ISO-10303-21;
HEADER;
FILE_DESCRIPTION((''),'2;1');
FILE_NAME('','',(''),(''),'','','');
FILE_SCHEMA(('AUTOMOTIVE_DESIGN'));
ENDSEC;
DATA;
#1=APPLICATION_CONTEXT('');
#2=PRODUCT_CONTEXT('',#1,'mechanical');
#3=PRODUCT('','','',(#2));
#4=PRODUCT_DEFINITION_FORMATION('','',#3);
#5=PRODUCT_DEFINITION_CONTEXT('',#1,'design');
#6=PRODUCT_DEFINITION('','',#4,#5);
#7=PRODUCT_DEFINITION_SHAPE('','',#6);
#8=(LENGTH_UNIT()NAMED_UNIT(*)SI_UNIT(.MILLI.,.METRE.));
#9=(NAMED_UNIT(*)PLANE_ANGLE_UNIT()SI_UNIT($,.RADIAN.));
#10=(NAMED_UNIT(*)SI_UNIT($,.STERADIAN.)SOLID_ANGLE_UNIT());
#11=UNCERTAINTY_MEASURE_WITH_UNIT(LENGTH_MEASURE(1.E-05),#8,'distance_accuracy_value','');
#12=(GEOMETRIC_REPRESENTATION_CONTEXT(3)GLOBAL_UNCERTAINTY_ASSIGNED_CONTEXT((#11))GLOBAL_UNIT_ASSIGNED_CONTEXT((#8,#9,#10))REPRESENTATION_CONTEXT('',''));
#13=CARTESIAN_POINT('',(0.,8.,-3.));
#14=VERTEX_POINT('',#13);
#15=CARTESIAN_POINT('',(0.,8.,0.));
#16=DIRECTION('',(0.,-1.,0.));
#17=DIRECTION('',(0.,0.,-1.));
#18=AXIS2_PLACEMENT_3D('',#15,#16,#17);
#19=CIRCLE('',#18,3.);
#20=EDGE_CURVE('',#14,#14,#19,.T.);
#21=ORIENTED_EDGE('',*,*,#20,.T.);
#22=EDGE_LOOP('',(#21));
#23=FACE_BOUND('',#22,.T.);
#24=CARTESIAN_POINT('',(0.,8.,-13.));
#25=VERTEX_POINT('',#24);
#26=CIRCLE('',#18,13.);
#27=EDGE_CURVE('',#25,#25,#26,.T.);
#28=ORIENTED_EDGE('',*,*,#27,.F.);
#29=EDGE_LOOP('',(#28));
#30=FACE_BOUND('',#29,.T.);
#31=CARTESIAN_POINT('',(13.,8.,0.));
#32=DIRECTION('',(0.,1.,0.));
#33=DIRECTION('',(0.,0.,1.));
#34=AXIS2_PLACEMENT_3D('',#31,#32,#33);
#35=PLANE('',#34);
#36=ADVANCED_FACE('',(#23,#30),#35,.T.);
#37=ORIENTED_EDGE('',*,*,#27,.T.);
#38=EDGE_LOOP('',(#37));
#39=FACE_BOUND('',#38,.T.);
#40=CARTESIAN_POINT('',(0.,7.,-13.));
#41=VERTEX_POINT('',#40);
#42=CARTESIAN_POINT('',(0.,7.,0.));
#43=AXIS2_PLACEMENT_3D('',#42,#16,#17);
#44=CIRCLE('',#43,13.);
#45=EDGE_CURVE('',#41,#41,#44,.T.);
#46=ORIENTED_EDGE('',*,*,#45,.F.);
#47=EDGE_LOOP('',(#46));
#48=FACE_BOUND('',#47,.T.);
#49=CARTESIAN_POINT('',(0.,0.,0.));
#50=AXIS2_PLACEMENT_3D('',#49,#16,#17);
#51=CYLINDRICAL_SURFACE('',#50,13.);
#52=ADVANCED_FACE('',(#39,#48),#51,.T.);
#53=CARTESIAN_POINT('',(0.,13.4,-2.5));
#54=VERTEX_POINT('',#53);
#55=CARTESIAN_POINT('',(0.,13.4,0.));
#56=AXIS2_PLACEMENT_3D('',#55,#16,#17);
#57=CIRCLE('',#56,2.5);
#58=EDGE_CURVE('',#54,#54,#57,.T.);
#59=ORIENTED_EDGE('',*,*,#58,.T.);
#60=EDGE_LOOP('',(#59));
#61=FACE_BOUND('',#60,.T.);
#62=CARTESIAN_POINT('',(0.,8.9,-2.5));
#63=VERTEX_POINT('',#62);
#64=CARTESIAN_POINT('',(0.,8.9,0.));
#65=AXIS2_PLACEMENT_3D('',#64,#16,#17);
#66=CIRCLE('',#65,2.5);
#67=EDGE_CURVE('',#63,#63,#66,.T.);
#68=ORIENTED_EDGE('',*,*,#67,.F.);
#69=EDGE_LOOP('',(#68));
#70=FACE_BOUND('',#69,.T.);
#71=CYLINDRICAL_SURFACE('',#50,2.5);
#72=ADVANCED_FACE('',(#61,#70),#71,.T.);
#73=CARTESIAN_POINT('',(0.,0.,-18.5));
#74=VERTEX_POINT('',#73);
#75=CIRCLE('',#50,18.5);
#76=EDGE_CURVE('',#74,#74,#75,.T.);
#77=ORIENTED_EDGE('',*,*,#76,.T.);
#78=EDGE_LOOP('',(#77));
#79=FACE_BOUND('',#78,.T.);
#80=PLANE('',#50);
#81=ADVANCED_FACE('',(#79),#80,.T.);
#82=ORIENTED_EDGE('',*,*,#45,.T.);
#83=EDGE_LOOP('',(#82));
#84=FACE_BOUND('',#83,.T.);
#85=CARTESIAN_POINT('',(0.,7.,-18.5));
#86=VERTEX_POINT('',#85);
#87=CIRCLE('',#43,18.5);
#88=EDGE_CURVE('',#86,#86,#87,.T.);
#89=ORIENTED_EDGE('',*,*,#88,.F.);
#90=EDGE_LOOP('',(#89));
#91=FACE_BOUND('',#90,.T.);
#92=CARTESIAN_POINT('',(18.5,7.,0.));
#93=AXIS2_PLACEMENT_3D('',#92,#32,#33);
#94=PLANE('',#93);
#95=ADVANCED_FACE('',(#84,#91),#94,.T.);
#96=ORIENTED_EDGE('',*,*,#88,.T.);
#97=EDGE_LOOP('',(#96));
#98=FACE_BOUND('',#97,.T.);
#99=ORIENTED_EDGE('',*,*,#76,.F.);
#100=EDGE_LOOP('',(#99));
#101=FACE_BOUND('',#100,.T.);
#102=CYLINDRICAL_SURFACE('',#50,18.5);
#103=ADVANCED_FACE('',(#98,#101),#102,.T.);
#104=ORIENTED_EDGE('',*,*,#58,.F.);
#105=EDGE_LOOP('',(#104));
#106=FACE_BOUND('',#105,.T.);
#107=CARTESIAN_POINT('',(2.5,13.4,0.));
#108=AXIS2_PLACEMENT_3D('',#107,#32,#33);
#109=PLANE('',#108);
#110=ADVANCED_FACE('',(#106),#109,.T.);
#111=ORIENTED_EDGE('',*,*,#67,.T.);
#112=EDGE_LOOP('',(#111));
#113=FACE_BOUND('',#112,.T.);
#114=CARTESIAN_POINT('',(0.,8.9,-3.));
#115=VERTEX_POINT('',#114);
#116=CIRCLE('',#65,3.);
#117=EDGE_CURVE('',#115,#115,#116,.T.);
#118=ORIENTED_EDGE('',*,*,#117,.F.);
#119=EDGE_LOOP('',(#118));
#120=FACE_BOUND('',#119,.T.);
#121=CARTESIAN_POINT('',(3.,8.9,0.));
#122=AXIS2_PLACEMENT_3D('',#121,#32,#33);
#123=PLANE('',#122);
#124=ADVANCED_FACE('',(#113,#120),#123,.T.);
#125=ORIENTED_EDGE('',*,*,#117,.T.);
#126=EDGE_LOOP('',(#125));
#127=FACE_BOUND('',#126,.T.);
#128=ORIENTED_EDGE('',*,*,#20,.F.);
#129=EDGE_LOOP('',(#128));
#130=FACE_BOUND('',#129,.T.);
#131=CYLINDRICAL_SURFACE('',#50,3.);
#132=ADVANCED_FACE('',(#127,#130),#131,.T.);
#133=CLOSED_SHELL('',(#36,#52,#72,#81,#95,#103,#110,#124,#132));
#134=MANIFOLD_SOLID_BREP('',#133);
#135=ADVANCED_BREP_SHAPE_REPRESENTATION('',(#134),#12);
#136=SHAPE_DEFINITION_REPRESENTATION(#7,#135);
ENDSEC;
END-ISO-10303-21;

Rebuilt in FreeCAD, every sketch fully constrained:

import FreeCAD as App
import Part
import Sketcher
from FreeCAD import Vector

doc = App.newDocument("Part")
body = doc.addObject("PartDesign::Body", "Body")

# Sketch on XY plane
sketch1 = body.newObject("Sketcher::SketchObject", "Sketch")
sketch1.AttachmentSupport = (doc.getObject("XY_Plane"), [""])
sketch1.MapMode = "FlatFace"
sketch1.addGeometry(Part.LineSegment(Vector(0, 0, 0), Vector(18.5, 0, 0)), False)
sketch1.addGeometry(Part.LineSegment(Vector(18.5, 0, 0), Vector(18.5, 7, 0)), False)
sketch1.addGeometry(Part.LineSegment(Vector(18.5, 7, 0), Vector(13, 7, 0)), False)
sketch1.addGeometry(Part.LineSegment(Vector(13, 7, 0), Vector(13, 8, 0)), False)
sketch1.addGeometry(Part.LineSegment(Vector(13, 8, 0), Vector(3, 8, 0)), False)
sketch1.addGeometry(Part.LineSegment(Vector(3, 8, 0), Vector(3, 8.9, 0)), False)
sketch1.addGeometry(Part.LineSegment(Vector(3, 8.9, 0), Vector(2.5, 8.9, 0)), False)
sketch1.addGeometry(Part.LineSegment(Vector(2.5, 8.9, 0), Vector(2.5, 13.4, 0)), False)
sketch1.addGeometry(Part.LineSegment(Vector(2.5, 13.4, 0), Vector(0, 13.4, 0)), False)
sketch1.addGeometry(Part.LineSegment(Vector(0, 13.4, 0), Vector(0, 0, 0)), False)
sketch1.addConstraint(Sketcher.Constraint("Coincident", 0, 2, 1, 1))
sketch1.addConstraint(Sketcher.Constraint("Coincident", 1, 2, 2, 1))
sketch1.addConstraint(Sketcher.Constraint("Coincident", 2, 2, 3, 1))
sketch1.addConstraint(Sketcher.Constraint("Coincident", 3, 2, 4, 1))
sketch1.addConstraint(Sketcher.Constraint("Coincident", 4, 2, 5, 1))
sketch1.addConstraint(Sketcher.Constraint("Coincident", 5, 2, 6, 1))
sketch1.addConstraint(Sketcher.Constraint("Coincident", 6, 2, 7, 1))
sketch1.addConstraint(Sketcher.Constraint("Coincident", 7, 2, 8, 1))
sketch1.addConstraint(Sketcher.Constraint("Coincident", 8, 2, 9, 1))
sketch1.addConstraint(Sketcher.Constraint("Coincident", 9, 2, 0, 1))
sketch1.addConstraint(Sketcher.Constraint("Horizontal", 0))
sketch1.addConstraint(Sketcher.Constraint("Vertical", 1))
sketch1.addConstraint(Sketcher.Constraint("Horizontal", 2))
sketch1.addConstraint(Sketcher.Constraint("Vertical", 3))
sketch1.addConstraint(Sketcher.Constraint("Horizontal", 4))
sketch1.addConstraint(Sketcher.Constraint("Vertical", 5))
sketch1.addConstraint(Sketcher.Constraint("Horizontal", 6))
sketch1.addConstraint(Sketcher.Constraint("Vertical", 7))
sketch1.addConstraint(Sketcher.Constraint("Horizontal", 8))
sketch1.addConstraint(Sketcher.Constraint("Vertical", 9))
sketch1.addConstraint(Sketcher.Constraint("Coincident", 9, 2, -1, 1))
sketch1.addConstraint(Sketcher.Constraint("DistanceX", 4, 2, 4, 1, 10.0))
sketch1.addConstraint(Sketcher.Constraint("DistanceY", 1, 1, 1, 2, 7.0))
sketch1.addConstraint(Sketcher.Constraint("DistanceY", 3, 1, 3, 2, 1.0))
sketch1.addConstraint(Sketcher.Constraint("DistanceX", 0, 1, 0, 2, 18.5))
sketch1.addConstraint(Sketcher.Constraint("DistanceX", 2, 2, 2, 1, 5.5))
sketch1.addConstraint(Sketcher.Constraint("DistanceX", 6, 2, 6, 1, 0.5))
sketch1.addConstraint(Sketcher.Constraint("DistanceY", 5, 1, 5, 2, 0.9))
sketch1.addConstraint(Sketcher.Constraint("DistanceY", 7, 1, 7, 2, 4.5))
revolution = body.newObject("PartDesign::Revolution", "Revolution")
revolution.Profile = sketch1
revolution.ReferenceAxis = (sketch1, ["V_Axis"])
revolution.Angle = 360

doc.recompute()
